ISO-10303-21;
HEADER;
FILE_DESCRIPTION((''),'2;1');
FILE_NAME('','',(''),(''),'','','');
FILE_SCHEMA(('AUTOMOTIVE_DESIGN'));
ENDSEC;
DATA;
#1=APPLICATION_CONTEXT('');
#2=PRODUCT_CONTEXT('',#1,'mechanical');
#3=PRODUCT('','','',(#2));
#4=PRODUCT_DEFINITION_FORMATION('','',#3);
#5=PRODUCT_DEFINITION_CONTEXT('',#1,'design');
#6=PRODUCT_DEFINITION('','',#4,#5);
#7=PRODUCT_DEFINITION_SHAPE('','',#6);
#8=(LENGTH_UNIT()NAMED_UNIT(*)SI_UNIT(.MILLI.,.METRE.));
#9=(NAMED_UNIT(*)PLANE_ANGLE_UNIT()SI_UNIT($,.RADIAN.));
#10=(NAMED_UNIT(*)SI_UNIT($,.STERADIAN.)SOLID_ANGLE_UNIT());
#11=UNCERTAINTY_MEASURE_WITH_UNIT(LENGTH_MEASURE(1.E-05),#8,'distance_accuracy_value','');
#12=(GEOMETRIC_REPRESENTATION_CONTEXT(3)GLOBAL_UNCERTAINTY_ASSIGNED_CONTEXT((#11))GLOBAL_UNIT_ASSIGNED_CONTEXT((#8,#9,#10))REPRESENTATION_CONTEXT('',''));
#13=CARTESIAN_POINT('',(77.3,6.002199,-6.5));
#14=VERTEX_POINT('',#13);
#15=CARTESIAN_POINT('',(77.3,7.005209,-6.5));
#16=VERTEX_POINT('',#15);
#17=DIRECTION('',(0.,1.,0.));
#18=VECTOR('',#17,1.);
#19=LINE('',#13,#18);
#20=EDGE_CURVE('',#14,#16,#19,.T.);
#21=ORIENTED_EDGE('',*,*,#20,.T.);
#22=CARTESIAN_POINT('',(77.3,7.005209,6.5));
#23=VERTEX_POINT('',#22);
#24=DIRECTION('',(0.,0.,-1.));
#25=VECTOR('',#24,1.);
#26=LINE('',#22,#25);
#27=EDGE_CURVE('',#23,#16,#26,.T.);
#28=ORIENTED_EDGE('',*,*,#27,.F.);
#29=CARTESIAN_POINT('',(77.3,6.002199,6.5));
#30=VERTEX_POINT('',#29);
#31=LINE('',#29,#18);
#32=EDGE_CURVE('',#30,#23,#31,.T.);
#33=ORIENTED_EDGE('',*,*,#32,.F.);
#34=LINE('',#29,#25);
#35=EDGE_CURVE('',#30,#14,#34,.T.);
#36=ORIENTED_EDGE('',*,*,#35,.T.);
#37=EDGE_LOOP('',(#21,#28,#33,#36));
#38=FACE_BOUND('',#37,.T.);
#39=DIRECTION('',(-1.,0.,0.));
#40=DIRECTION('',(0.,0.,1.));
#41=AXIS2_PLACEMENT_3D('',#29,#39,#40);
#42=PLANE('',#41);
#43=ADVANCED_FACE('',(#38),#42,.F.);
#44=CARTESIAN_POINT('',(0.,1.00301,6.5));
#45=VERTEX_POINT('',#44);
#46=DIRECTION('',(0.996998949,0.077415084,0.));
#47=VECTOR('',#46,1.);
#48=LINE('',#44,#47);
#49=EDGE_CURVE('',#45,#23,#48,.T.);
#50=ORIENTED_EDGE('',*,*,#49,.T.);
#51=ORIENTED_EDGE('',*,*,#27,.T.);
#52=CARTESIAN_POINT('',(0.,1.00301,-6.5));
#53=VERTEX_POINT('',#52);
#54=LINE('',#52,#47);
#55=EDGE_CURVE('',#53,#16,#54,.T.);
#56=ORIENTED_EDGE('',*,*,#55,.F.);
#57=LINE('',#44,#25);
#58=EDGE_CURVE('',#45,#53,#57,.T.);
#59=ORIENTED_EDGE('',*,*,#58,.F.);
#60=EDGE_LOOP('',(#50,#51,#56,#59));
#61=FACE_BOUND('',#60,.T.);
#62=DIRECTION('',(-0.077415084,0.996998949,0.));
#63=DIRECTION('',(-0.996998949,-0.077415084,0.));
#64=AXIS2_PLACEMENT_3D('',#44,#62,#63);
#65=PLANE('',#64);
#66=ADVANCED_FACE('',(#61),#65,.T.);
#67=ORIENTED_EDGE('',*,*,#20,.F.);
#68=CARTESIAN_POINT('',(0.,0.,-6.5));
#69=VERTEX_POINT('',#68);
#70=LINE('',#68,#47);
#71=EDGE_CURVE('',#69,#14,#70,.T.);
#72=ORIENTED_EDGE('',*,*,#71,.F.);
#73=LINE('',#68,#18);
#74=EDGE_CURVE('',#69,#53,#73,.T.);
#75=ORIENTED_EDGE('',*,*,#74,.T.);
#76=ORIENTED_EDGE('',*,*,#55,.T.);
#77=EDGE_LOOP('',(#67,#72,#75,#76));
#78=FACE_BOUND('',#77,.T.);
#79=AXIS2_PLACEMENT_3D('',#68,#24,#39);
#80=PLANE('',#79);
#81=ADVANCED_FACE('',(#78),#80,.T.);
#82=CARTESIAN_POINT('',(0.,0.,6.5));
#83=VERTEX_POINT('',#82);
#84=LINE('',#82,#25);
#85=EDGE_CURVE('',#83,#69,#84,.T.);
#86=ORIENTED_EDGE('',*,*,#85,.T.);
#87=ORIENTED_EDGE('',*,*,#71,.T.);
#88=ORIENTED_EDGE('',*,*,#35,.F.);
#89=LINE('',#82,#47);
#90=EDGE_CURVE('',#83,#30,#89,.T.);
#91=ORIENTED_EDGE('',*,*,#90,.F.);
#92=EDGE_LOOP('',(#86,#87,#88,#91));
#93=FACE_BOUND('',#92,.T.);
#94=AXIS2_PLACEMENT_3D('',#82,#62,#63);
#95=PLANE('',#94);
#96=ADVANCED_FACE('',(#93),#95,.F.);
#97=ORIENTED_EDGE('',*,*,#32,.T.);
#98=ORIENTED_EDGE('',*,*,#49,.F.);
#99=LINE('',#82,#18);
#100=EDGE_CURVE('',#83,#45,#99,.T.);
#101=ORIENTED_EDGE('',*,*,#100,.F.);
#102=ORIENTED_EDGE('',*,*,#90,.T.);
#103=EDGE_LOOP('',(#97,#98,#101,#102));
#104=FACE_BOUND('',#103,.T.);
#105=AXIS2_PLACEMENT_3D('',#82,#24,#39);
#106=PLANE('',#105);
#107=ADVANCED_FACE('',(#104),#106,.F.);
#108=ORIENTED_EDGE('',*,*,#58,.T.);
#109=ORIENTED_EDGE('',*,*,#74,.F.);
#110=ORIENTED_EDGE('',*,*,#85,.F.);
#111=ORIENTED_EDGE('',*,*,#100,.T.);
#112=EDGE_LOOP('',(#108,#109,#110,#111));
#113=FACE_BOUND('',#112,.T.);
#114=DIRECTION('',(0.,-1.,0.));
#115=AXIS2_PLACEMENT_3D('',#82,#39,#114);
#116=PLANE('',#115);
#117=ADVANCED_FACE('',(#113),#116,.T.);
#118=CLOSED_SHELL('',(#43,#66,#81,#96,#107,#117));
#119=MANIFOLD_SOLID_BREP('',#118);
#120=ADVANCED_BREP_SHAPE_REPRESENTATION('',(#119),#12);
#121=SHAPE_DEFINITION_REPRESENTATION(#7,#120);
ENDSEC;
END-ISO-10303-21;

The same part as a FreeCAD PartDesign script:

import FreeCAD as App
import Part
import Sketcher
Q = App.Units.Quantity


def add_polygon(sketch, points):
    """Adds a closed chain of lines whose ends are joined by coincident constraints."""
    first, n = sketch.GeometryCount, len(points)
    for a, b in zip(points, points[1:] + points[:1]):
        sketch.addGeometry(Part.LineSegment(App.Vector(*a, 0), App.Vector(*b, 0)), False)
    for i in range(n):
        sketch.addConstraint(Sketcher.Constraint("Coincident", first + i, 2, first + (i + 1) % n, 1))

doc = App.newDocument("Part")
params = doc.addObject("Spreadsheet::Sheet", "Params")
for row, (alias, value) in enumerate([
    ("pad1_length", "13 mm"),
], start=1):
    params.set(f"A{row}", alias)
    params.set(f"B{row}", "=" + value)
    params.setAlias(f"B{row}", alias)

body = doc.addObject("PartDesign::Body", "Body")

sketch1 = body.newObject("Sketcher::SketchObject", "Sketch")
sketch1.AttachmentSupport = (doc.getObject("XY_Plane"), [""])
sketch1.MapMode = "FlatFace"
add_polygon(sketch1, [(0, 0), (77.3, 6), (77.3, 7), (0, 1)])
sketch1.addConstraint(Sketcher.Constraint("Vertical", 1))
sketch1.addConstraint(Sketcher.Constraint("Vertical", 3))
sketch1.addConstraint(Sketcher.Constraint("Coincident", 3, 2, -1, 1))
sketch1.addConstraint(Sketcher.Constraint("Parallel", 0, 2))
sketch1.addConstraint(Sketcher.Constraint("DistanceX", -1, 1, 0, 2, 77.3))
sketch1.addConstraint(Sketcher.Constraint("Angle", 0, Q("4.44 deg")))
sketch1.addConstraint(Sketcher.Constraint("DistanceY", 1, 1, 1, 2, 1.00301))
pad1 = body.newObject("PartDesign::Pad", "Pad")
pad1.Profile = sketch1
pad1.setExpression("Length", "Params.pad1_length")
pad1.Midplane = True

doc.recompute()
